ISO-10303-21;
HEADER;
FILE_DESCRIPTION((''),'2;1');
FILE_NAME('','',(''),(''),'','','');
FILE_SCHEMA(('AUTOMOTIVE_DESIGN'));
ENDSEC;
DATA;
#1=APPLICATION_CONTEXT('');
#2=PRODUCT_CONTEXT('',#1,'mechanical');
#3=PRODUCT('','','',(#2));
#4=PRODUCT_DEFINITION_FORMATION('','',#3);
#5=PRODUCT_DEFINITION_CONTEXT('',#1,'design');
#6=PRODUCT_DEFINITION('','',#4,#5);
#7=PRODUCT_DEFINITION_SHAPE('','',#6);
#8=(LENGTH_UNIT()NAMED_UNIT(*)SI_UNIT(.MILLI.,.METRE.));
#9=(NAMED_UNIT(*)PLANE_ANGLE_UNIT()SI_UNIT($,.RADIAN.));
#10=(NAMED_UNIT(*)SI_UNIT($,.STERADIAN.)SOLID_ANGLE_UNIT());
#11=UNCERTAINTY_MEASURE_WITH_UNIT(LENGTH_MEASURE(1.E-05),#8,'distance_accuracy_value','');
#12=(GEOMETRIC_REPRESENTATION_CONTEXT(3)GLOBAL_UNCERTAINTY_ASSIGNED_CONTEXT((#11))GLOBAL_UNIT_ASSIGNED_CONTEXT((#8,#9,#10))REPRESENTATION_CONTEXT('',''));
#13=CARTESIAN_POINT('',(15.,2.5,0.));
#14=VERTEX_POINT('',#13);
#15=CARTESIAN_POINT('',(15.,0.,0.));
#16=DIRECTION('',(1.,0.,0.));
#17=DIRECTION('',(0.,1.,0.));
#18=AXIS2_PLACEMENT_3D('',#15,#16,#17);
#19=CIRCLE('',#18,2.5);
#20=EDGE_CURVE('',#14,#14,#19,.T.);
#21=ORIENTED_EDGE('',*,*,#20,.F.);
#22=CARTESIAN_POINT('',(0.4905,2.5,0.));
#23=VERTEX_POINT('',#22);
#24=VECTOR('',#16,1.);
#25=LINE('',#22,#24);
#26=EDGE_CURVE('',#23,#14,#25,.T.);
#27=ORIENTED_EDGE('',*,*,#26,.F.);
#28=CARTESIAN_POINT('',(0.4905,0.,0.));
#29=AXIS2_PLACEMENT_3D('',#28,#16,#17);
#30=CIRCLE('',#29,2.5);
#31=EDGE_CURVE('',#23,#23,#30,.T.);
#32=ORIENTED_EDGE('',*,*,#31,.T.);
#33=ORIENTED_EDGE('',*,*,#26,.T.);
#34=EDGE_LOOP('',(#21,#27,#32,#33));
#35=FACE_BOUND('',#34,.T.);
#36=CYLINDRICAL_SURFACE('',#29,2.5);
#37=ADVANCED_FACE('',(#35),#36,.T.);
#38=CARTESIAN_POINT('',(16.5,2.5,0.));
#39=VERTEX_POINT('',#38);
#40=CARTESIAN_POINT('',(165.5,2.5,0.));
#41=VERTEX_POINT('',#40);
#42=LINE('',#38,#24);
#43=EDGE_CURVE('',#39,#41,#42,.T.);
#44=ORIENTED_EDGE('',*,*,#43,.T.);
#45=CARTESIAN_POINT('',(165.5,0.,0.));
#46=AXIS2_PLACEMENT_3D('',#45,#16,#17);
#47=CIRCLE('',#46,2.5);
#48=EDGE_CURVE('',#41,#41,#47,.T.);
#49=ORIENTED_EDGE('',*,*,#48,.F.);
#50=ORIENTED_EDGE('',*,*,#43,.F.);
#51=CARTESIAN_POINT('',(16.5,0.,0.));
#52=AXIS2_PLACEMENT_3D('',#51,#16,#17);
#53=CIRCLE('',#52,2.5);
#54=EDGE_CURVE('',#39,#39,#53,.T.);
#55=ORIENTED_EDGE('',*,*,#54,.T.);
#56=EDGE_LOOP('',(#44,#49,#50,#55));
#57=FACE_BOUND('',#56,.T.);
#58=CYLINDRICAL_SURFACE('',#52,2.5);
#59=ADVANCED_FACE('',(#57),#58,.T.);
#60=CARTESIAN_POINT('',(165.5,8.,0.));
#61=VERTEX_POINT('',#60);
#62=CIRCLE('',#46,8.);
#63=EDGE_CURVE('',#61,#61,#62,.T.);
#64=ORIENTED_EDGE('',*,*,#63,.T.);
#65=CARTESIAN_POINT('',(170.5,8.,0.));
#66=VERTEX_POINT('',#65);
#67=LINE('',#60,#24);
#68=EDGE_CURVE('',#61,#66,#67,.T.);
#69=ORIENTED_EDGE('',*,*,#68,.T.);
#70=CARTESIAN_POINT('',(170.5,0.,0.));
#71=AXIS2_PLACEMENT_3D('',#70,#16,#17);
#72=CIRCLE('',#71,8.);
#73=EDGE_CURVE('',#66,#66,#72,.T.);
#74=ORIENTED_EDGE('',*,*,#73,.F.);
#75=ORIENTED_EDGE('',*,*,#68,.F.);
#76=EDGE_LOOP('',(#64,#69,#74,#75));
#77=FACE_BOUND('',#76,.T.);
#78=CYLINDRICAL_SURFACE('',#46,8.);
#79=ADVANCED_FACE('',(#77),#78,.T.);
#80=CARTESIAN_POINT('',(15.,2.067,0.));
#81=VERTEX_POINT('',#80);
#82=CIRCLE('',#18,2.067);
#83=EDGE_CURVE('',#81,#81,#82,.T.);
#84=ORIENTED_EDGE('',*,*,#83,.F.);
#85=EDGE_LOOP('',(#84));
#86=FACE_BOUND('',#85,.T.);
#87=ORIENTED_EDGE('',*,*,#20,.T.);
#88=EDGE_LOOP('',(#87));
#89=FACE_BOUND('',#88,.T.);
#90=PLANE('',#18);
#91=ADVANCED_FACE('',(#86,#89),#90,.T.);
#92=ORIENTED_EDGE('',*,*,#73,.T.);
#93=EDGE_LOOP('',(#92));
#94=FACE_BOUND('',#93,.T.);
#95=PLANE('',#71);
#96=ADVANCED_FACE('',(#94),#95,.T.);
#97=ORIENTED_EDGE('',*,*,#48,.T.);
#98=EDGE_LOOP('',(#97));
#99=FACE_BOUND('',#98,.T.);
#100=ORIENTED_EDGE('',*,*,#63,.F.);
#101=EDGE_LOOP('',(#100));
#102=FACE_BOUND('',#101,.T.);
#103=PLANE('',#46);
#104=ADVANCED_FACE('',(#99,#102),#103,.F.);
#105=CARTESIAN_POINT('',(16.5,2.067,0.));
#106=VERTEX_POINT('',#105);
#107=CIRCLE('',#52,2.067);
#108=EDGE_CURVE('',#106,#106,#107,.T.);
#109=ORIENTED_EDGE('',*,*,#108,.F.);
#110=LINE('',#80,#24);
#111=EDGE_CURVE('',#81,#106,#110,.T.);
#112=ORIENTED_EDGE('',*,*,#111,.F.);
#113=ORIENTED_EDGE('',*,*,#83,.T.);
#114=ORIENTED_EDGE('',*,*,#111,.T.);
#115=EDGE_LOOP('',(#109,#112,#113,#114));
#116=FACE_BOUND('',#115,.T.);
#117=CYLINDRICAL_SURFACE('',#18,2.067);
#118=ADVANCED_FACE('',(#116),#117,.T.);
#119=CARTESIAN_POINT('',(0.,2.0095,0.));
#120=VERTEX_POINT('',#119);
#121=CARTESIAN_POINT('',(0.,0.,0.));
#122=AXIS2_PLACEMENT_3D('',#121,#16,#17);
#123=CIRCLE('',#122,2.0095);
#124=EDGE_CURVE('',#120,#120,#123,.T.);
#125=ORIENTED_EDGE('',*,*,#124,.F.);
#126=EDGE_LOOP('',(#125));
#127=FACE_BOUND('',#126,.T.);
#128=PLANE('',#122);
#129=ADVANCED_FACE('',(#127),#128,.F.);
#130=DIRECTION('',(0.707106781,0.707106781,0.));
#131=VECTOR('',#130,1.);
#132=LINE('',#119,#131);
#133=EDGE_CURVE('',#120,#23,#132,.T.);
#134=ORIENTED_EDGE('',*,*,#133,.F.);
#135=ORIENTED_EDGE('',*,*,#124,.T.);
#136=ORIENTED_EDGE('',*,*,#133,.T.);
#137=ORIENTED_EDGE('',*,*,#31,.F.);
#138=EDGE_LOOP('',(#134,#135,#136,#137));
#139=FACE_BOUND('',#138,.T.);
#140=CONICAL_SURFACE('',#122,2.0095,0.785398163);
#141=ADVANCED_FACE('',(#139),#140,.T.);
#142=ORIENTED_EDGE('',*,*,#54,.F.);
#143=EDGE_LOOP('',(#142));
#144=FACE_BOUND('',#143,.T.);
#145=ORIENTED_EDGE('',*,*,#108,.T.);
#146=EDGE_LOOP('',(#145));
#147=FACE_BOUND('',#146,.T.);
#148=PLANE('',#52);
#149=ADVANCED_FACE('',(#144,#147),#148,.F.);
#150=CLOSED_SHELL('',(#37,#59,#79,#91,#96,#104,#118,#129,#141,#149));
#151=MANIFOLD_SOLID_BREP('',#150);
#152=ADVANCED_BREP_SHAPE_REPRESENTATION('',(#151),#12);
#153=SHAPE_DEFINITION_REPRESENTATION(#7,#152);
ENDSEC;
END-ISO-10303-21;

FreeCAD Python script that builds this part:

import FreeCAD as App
import Part
import Sketcher
Q = App.Units.Quantity


def add_polygon(sketch, points):
    """Adds a closed chain of lines whose ends are joined by coincident constraints."""
    first, n = sketch.GeometryCount, len(points)
    for a, b in zip(points, points[1:] + points[:1]):
        sketch.addGeometry(Part.LineSegment(App.Vector(*a, 0), App.Vector(*b, 0)), False)
    for i in range(n):
        sketch.addConstraint(Sketcher.Constraint("Coincident", first + i, 2, first + (i + 1) % n, 1))

doc = App.newDocument("Part")
body = doc.addObject("PartDesign::Body", "Body")

# Sketch on XY plane
sketch1 = body.newObject("Sketcher::SketchObject", "Sketch")
sketch1.AttachmentSupport = (doc.getObject("XY_Plane"), [""])
sketch1.MapMode = "FlatFace"
add_polygon(sketch1, [(0, 0), (170.5, 0), (170.5, 8), (165.5, 8), (165.5, 2.5), (16.5, 2.5), (16.5, 2.07), (15, 2.07), (15, 2.5), (0.49, 2.5), (0, 2.01)])  # lines 0-10
sketch1.addConstraint(Sketcher.Constraint("Horizontal", 0))
sketch1.addConstraint(Sketcher.Constraint("Vertical", 1))
sketch1.addConstraint(Sketcher.Constraint("Horizontal", 2))
sketch1.addConstraint(Sketcher.Constraint("Vertical", 3))
sketch1.addConstraint(Sketcher.Constraint("Horizontal", 4))
sketch1.addConstraint(Sketcher.Constraint("Vertical", 5))
sketch1.addConstraint(Sketcher.Constraint("Horizontal", 6))
sketch1.addConstraint(Sketcher.Constraint("Vertical", 7))
sketch1.addConstraint(Sketcher.Constraint("Horizontal", 8))
sketch1.addConstraint(Sketcher.Constraint("Vertical", 10))
sketch1.addConstraint(Sketcher.Constraint("Coincident", 10, 2, -1, 1))
sketch1.addConstraint(Sketcher.Constraint("Horizontal", 4, 2, 7, 2))
sketch1.addConstraint(Sketcher.Constraint("DistanceX", 2, 2, 2, 1, Q("5 mm")))
sketch1.addConstraint(Sketcher.Constraint("DistanceX", 4, 2, 4, 1, Q("149 mm")))
sketch1.addConstraint(Sketcher.Constraint("DistanceY", 1, 1, 1, 2, Q("8 mm")))
sketch1.addConstraint(Sketcher.Constraint("Angle", 9, Q("-135 deg")))
sketch1.addConstraint(Sketcher.Constraint("DistanceX", 0, 1, 0, 2, Q("170.5 mm")))
sketch1.addConstraint(Sketcher.Constraint("DistanceX", 6, 2, 6, 1, Q("1.5 mm")))
sketch1.addConstraint(Sketcher.Constraint("DistanceY", 3, 2, 3, 1, Q("5.5 mm")))
sketch1.addConstraint(Sketcher.Constraint("DistanceY", 5, 2, 5, 1, Q("0.433 mm")))
sketch1.addConstraint(Sketcher.Constraint("DistanceX", 8, 2, 8, 1, Q("14.5095 mm")))
revolution = body.newObject("PartDesign::Revolution", "Revolution")
revolution.Profile = sketch1
revolution.ReferenceAxis = (sketch1, ["H_Axis"])
revolution.Angle = 360

doc.recompute()
